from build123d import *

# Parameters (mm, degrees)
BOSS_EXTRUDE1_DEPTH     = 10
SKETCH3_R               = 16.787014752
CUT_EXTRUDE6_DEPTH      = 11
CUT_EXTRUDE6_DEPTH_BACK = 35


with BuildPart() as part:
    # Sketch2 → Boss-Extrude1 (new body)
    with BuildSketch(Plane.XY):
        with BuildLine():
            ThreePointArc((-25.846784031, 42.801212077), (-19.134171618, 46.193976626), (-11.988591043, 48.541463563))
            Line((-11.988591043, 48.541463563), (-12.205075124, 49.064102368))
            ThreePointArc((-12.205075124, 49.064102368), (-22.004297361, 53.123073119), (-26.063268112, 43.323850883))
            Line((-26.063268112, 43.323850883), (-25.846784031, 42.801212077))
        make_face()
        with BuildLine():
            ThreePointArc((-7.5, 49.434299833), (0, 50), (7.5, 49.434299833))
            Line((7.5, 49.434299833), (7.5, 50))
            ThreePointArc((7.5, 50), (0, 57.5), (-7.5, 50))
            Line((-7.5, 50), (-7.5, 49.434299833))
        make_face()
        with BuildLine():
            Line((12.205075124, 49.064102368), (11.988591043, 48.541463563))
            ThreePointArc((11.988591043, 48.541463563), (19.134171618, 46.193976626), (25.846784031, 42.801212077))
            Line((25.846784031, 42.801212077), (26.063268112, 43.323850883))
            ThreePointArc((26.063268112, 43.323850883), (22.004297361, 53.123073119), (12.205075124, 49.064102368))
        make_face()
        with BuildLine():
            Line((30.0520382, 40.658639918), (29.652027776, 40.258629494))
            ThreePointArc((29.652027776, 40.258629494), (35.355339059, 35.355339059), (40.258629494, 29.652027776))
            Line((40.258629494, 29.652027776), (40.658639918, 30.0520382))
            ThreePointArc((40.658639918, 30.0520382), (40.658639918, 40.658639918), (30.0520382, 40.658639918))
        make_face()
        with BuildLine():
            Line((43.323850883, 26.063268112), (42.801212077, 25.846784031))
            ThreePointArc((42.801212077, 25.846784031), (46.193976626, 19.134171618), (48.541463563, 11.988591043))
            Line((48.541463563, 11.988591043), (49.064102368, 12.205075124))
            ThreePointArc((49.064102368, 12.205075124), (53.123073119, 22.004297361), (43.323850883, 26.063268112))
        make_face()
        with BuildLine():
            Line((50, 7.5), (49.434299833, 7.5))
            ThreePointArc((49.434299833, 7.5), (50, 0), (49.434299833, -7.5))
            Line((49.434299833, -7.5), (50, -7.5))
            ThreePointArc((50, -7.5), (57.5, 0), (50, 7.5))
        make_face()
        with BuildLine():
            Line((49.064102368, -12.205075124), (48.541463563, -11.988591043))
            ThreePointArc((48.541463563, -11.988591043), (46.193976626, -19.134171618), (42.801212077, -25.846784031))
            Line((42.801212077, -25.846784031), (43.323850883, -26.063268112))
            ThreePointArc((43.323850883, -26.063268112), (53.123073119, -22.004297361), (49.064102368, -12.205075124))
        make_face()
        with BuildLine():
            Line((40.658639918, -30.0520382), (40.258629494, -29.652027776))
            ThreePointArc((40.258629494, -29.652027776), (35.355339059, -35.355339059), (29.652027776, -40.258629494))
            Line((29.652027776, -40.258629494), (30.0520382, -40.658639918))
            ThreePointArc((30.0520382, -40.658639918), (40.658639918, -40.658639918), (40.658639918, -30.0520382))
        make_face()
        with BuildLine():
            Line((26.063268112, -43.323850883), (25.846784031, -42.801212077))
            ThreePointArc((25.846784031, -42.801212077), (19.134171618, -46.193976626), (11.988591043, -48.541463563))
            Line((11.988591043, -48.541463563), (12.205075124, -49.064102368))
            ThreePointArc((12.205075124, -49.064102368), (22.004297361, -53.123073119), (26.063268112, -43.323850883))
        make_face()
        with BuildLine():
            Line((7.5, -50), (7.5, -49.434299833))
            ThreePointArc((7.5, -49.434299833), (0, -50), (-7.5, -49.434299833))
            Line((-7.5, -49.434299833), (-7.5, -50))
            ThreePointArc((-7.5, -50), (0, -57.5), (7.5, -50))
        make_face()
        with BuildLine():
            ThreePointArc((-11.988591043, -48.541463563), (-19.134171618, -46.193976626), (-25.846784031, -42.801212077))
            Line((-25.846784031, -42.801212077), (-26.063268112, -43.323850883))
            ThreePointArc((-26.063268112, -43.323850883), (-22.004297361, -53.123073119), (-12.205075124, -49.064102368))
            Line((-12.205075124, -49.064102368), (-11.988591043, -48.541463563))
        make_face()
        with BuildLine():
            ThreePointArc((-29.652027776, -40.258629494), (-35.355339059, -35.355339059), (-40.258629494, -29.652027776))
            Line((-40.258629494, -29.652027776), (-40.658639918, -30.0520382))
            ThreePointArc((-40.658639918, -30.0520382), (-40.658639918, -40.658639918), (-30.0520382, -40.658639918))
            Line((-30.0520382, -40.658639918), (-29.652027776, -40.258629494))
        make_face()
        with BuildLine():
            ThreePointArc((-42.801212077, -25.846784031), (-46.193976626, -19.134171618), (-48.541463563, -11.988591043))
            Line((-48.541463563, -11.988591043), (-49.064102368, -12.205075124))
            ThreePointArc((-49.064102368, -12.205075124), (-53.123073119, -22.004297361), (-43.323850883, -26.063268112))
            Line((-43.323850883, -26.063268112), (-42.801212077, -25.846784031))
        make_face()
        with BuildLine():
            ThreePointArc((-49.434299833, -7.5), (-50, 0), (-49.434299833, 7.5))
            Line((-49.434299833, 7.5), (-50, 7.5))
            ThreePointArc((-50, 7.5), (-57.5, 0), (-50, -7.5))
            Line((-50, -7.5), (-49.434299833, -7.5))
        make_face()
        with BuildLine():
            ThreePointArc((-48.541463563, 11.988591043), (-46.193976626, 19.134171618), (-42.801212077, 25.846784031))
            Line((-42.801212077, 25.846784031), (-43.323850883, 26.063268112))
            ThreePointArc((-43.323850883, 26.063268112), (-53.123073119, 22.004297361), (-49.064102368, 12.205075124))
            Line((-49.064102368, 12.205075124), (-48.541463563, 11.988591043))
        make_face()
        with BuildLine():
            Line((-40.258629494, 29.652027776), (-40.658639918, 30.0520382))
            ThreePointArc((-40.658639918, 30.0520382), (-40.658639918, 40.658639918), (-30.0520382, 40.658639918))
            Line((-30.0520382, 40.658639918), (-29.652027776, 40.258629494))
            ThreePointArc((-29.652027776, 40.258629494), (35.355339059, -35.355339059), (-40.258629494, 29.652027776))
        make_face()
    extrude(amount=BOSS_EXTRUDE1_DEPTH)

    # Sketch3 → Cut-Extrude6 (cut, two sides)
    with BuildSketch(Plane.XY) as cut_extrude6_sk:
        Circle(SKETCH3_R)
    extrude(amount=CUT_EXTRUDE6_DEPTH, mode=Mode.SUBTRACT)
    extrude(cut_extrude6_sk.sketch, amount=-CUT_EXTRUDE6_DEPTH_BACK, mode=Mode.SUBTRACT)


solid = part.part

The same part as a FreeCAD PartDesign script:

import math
import FreeCAD as App
import Part
import Sketcher
Q = App.Units.Quantity

doc = App.newDocument("Part")
body = doc.addObject("PartDesign::Body", "Body")

# Sketch on XY plane
sketch1 = body.newObject("Sketcher::SketchObject", "Sketch")
sketch1.AttachmentSupport = (doc.getObject("XY_Plane"), [""])
sketch1.MapMode = "FlatFace"
sketch1.addGeometry(Part.LineSegment(App.Vector(-11.988591, 48.541464, 0), App.Vector(-12.205075, 49.064102, 0)), False)
sketch1.addGeometry(Part.ArcOfCircle(Part.Circle(App.Vector(-19.134172, 46.193977, 0), App.Vector(0, 0, 1), 7.5), math.radians(22.5), math.radians(202.5)), False)
sketch1.addGeometry(Part.LineSegment(App.Vector(-26.063268, 43.323851, 0), App.Vector(-25.846784, 42.801212, 0)), False)
sketch1.addGeometry(Part.ArcOfCircle(Part.Circle(App.Vector(0, 0, 0), App.Vector(0, 0, 1), 50), math.radians(121.126927), math.radians(126.373073)), False)
sketch1.addGeometry(Part.LineSegment(App.Vector(-29.652028, 40.258629, 0), App.Vector(-30.052038, 40.65864, 0)), False)
sketch1.addGeometry(Part.ArcOfCircle(Part.Circle(App.Vector(-35.355339, 35.355339, 0), App.Vector(0, 0, 1), 7.5), math.radians(45), math.radians(225)), False)
sketch1.addGeometry(Part.LineSegment(App.Vector(-40.65864, 30.052038, 0), App.Vector(-40.258629, 29.652028, 0)), False)
sketch1.addGeometry(Part.ArcOfCircle(Part.Circle(App.Vector(0, 0, 0), App.Vector(0, 0, 1), 50), math.radians(143.626927), math.radians(148.873073)), False)
sketch1.addGeometry(Part.LineSegment(App.Vector(-42.801212, 25.846784, 0), App.Vector(-43.323851, 26.063268, 0)), False)
sketch1.addGeometry(Part.ArcOfCircle(Part.Circle(App.Vector(-46.193977, 19.134172, 0), App.Vector(0, 0, 1), 7.5), math.radians(67.5), math.radians(247.5)), False)
sketch1.addGeometry(Part.LineSegment(App.Vector(-49.064102, 12.205075, 0), App.Vector(-48.541464, 11.988591, 0)), False)
sketch1.addGeometry(Part.ArcOfCircle(Part.Circle(App.Vector(0, 0, 0), App.Vector(0, 0, 1), 50), math.radians(166.126927), math.radians(171.373073)), False)
sketch1.addGeometry(Part.LineSegment(App.Vector(-49.4343, 7.5, 0), App.Vector(-50, 7.5, 0)), False)
sketch1.addGeometry(Part.ArcOfCircle(Part.Circle(App.Vector(-50, 0, 0), App.Vector(0, 0, 1), 7.5), math.radians(90), math.radians(270)), False)
sketch1.addGeometry(Part.LineSegment(App.Vector(-50, -7.5, 0), App.Vector(-49.4343, -7.5, 0)), False)
sketch1.addGeometry(Part.ArcOfCircle(Part.Circle(App.Vector(0, 0, 0), App.Vector(0, 0, 1), 50), math.radians(-171.373073), math.radians(-166.126927)), False)
sketch1.addGeometry(Part.LineSegment(App.Vector(-48.541464, -11.988591, 0), App.Vector(-49.064102, -12.205075, 0)), False)
sketch1.addGeometry(Part.ArcOfCircle(Part.Circle(App.Vector(-46.193977, -19.134172, 0), App.Vector(0, 0, 1), 7.5), math.radians(112.5), math.radians(292.5)), False)
sketch1.addGeometry(Part.LineSegment(App.Vector(-43.323851, -26.063268, 0), App.Vector(-42.801212, -25.846784, 0)), False)
sketch1.addGeometry(Part.ArcOfCircle(Part.Circle(App.Vector(0, 0, 0), App.Vector(0, 0, 1), 50), math.radians(-148.873073), math.radians(-143.626927)), False)
sketch1.addGeometry(Part.LineSegment(App.Vector(-40.258629, -29.652028, 0), App.Vector(-40.65864, -30.052038, 0)), False)
sketch1.addGeometry(Part.ArcOfCircle(Part.Circle(App.Vector(-35.355339, -35.355339, 0), App.Vector(0, 0, 1), 7.5), math.radians(135), math.radians(315)), False)
sketch1.addGeometry(Part.LineSegment(App.Vector(-30.052038, -40.65864, 0), App.Vector(-29.652028, -40.258629, 0)), False)
sketch1.addGeometry(Part.ArcOfCircle(Part.Circle(App.Vector(0, 0, 0), App.Vector(0, 0, 1), 50), math.radians(-126.373073), math.radians(-121.126927)), False)
sketch1.addGeometry(Part.LineSegment(App.Vector(-25.846784, -42.801212, 0), App.Vector(-26.063268, -43.323851, 0)), False)
sketch1.addGeometry(Part.ArcOfCircle(Part.Circle(App.Vector(-19.134172, -46.193977, 0), App.Vector(0, 0, 1), 7.5), math.radians(157.5), math.radians(337.5)), False)
sketch1.addGeometry(Part.LineSegment(App.Vector(-12.205075, -49.064102, 0), App.Vector(-11.988591, -48.541464, 0)), False)
sketch1.addGeometry(Part.ArcOfCircle(Part.Circle(App.Vector(0, 0, 0), App.Vector(0, 0, 1), 50), math.radians(-103.873073), math.radians(-98.626927)), False)
sketch1.addGeometry(Part.LineSegment(App.Vector(-7.5, -49.4343, 0), App.Vector(-7.5, -50, 0)), False)
sketch1.addGeometry(Part.ArcOfCircle(Part.Circle(App.Vector(0, -50, 0), App.Vector(0, 0, 1), 7.5), math.radians(180), math.radians(360)), False)
sketch1.addGeometry(Part.LineSegment(App.Vector(7.5, -50, 0), App.Vector(7.5, -49.4343, 0)), False)
sketch1.addGeometry(Part.ArcOfCircle(Part.Circle(App.Vector(0, 0, 0), App.Vector(0, 0, 1), 50), math.radians(-81.373073), math.radians(-76.126927)), False)
sketch1.addGeometry(Part.LineSegment(App.Vector(11.988591, -48.541464, 0), App.Vector(12.205075, -49.064102, 0)), False)
sketch1.addGeometry(Part.ArcOfCircle(Part.Circle(App.Vector(19.134172, -46.193977, 0), App.Vector(0, 0, 1), 7.5), math.radians(-157.5), math.radians(22.5)), False)
sketch1.addGeometry(Part.LineSegment(App.Vector(26.063268, -43.323851, 0), App.Vector(25.846784, -42.801212, 0)), False)
sketch1.addGeometry(Part.ArcOfCircle(Part.Circle(App.Vector(0, 0, 0), App.Vector(0, 0, 1), 50), math.radians(-58.873073), math.radians(-53.626927)), False)
sketch1.addGeometry(Part.LineSegment(App.Vector(29.652028, -40.258629, 0), App.Vector(30.052038, -40.65864, 0)), False)
sketch1.addGeometry(Part.ArcOfCircle(Part.Circle(App.Vector(35.355339, -35.355339, 0), App.Vector(0, 0, 1), 7.5), math.radians(-135), math.radians(45)), False)
sketch1.addGeometry(Part.LineSegment(App.Vector(40.65864, -30.052038, 0), App.Vector(40.258629, -29.652028, 0)), False)
sketch1.addGeometry(Part.ArcOfCircle(Part.Circle(App.Vector(0, 0, 0), App.Vector(0, 0, 1), 50), math.radians(-36.373073), math.radians(-31.126927)), False)
sketch1.addGeometry(Part.LineSegment(App.Vector(42.801212, -25.846784, 0), App.Vector(43.323851, -26.063268, 0)), False)
sketch1.addGeometry(Part.ArcOfCircle(Part.Circle(App.Vector(46.193977, -19.134172, 0), App.Vector(0, 0, 1), 7.5), math.radians(-112.5), math.radians(67.5)), False)
sketch1.addGeometry(Part.LineSegment(App.Vector(49.064102, -12.205075, 0), App.Vector(48.541464, -11.988591, 0)), False)
sketch1.addGeometry(Part.ArcOfCircle(Part.Circle(App.Vector(0, 0, 0), App.Vector(0, 0, 1), 50), math.radians(-13.873073), math.radians(-8.626927)), False)
sketch1.addGeometry(Part.LineSegment(App.Vector(49.4343, -7.5, 0), App.Vector(50, -7.5, 0)), False)
sketch1.addGeometry(Part.ArcOfCircle(Part.Circle(App.Vector(50, 0, 0), App.Vector(0, 0, 1), 7.5), math.radians(-90), math.radians(90)), False)
sketch1.addGeometry(Part.LineSegment(App.Vector(50, 7.5, 0), App.Vector(49.4343, 7.5, 0)), False)
sketch1.addGeometry(Part.ArcOfCircle(Part.Circle(App.Vector(0, 0, 0), App.Vector(0, 0, 1), 50), math.radians(8.626927), math.radians(13.873073)), False)
sketch1.addGeometry(Part.LineSegment(App.Vector(48.541464, 11.988591, 0), App.Vector(49.064102, 12.205075, 0)), False)
sketch1.addGeometry(Part.ArcOfCircle(Part.Circle(App.Vector(46.193977, 19.134172, 0), App.Vector(0, 0, 1), 7.5), math.radians(-67.5), math.radians(112.5)), False)
sketch1.addGeometry(Part.LineSegment(App.Vector(43.323851, 26.063268, 0), App.Vector(42.801212, 25.846784, 0)), False)
sketch1.addGeometry(Part.ArcOfCircle(Part.Circle(App.Vector(0, 0, 0), App.Vector(0, 0, 1), 50), math.radians(31.126927), math.radians(36.373073)), False)
sketch1.addGeometry(Part.LineSegment(App.Vector(40.258629, 29.652028, 0), App.Vector(40.65864, 30.052038, 0)), False)
sketch1.addGeometry(Part.ArcOfCircle(Part.Circle(App.Vector(35.355339, 35.355339, 0), App.Vector(0, 0, 1), 7.5), math.radians(-45), math.radians(135)), False)
sketch1.addGeometry(Part.LineSegment(App.Vector(30.052038, 40.65864, 0), App.Vector(29.652028, 40.258629, 0)), False)
sketch1.addGeometry(Part.ArcOfCircle(Part.Circle(App.Vector(0, 0, 0), App.Vector(0, 0, 1), 50), math.radians(53.626927), math.radians(58.873073)), False)
sketch1.addGeometry(Part.LineSegment(App.Vector(25.846784, 42.801212, 0), App.Vector(26.063268, 43.323851, 0)), False)
sketch1.addGeometry(Part.ArcOfCircle(Part.Circle(App.Vector(19.134172, 46.193977, 0), App.Vector(0, 0, 1), 7.5), math.radians(-22.5), math.radians(157.5)), False)
sketch1.addGeometry(Part.LineSegment(App.Vector(12.205075, 49.064102, 0), App.Vector(11.988591, 48.541464, 0)), False)
sketch1.addGeometry(Part.ArcOfCircle(Part.Circle(App.Vector(0, 0, 0), App.Vector(0, 0, 1), 50), math.radians(76.126927), math.radians(81.373073)), False)
sketch1.addGeometry(Part.LineSegment(App.Vector(7.5, 49.4343, 0), App.Vector(7.5, 50, 0)), False)
sketch1.addGeometry(Part.ArcOfCircle(Part.Circle(App.Vector(0, 50, 0), App.Vector(0, 0, 1), 7.5), math.radians(0), math.radians(180)), False)
sketch1.addGeometry(Part.LineSegment(App.Vector(-7.5, 50, 0), App.Vector(-7.5, 49.4343, 0)), False)
sketch1.addGeometry(Part.ArcOfCircle(Part.Circle(App.Vector(0, 0, 0), App.Vector(0, 0, 1), 50), math.radians(98.626927), math.radians(103.873073)), False)
sketch1.addConstraint(Sketcher.Constraint("Tangent", 0, 2, 1, 1))
sketch1.addConstraint(Sketcher.Constraint("Tangent", 1, 2, 2, 1))
sketch1.addConstraint(Sketcher.Constraint("Coincident", 2, 2, 3, 1))
sketch1.addConstraint(Sketcher.Constraint("Coincident", 3, 2, 4, 1))
sketch1.addConstraint(Sketcher.Constraint("Tangent", 4, 2, 5, 1))
sketch1.addConstraint(Sketcher.Constraint("Tangent", 5, 2, 6, 1))
sketch1.addConstraint(Sketcher.Constraint("Coincident", 6, 2, 7, 1))
sketch1.addConstraint(Sketcher.Constraint("Coincident", 7, 2, 8, 1))
sketch1.addConstraint(Sketcher.Constraint("Tangent", 8, 2, 9, 1))
sketch1.addConstraint(Sketcher.Constraint("Tangent", 9, 2, 10, 1))
sketch1.addConstraint(Sketcher.Constraint("Coincident", 10, 2, 11, 1))
sketch1.addConstraint(Sketcher.Constraint("Coincident", 11, 2, 12, 1))
sketch1.addConstraint(Sketcher.Constraint("Tangent", 12, 2, 13, 1))
sketch1.addConstraint(Sketcher.Constraint("Tangent", 13, 2, 14, 1))
sketch1.addConstraint(Sketcher.Constraint("Coincident", 14, 2, 15, 1))
sketch1.addConstraint(Sketcher.Constraint("Coincident", 15, 2, 16, 1))
sketch1.addConstraint(Sketcher.Constraint("Tangent", 16, 2, 17, 1))
sketch1.addConstraint(Sketcher.Constraint("Tangent", 17, 2, 18, 1))
sketch1.addConstraint(Sketcher.Constraint("Coincident", 18, 2, 19, 1))
sketch1.addConstraint(Sketcher.Constraint("Coincident", 19, 2, 20, 1))
sketch1.addConstraint(Sketcher.Constraint("Tangent", 20, 2, 21, 1))
sketch1.addConstraint(Sketcher.Constraint("Tangent", 21, 2, 22, 1))
sketch1.addConstraint(Sketcher.Constraint("Coincident", 22, 2, 23, 1))
sketch1.addConstraint(Sketcher.Constraint("Coincident", 23, 2, 24, 1))
sketch1.addConstraint(Sketcher.Constraint("Tangent", 24, 2, 25, 1))
sketch1.addConstraint(Sketcher.Constraint("Tangent", 25, 2, 26, 1))
sketch1.addConstraint(Sketcher.Constraint("Coincident", 26, 2, 27, 1))
sketch1.addConstraint(Sketcher.Constraint("Coincident", 27, 2, 28, 1))
sketch1.addConstraint(Sketcher.Constraint("Tangent", 28, 2, 29, 1))
sketch1.addConstraint(Sketcher.Constraint("Tangent", 29, 2, 30, 1))
sketch1.addConstraint(Sketcher.Constraint("Coincident", 30, 2, 31, 1))
sketch1.addConstraint(Sketcher.Constraint("Coincident", 31, 2, 32, 1))
sketch1.addConstraint(Sketcher.Constraint("Tangent", 32, 2, 33, 1))
sketch1.addConstraint(Sketcher.Constraint("Tangent", 33, 2, 34, 1))
sketch1.addConstraint(Sketcher.Constraint("Coincident", 34, 2, 35, 1))
sketch1.addConstraint(Sketcher.Constraint("Coincident", 35, 2, 36, 1))
sketch1.addConstraint(Sketcher.Constraint("Tangent", 36, 2, 37, 1))
sketch1.addConstraint(Sketcher.Constraint("Tangent", 37, 2, 38, 1))
sketch1.addConstraint(Sketcher.Constraint("Coincident", 38, 2, 39, 1))
sketch1.addConstraint(Sketcher.Constraint("Coincident", 39, 2, 40, 1))
sketch1.addConstraint(Sketcher.Constraint("Tangent", 40, 2, 41, 1))
sketch1.addConstraint(Sketcher.Constraint("Tangent", 41, 2, 42, 1))
sketch1.addConstraint(Sketcher.Constraint("Coincident", 42, 2, 43, 1))
sketch1.addConstraint(Sketcher.Constraint("Coincident", 43, 2, 44, 1))
sketch1.addConstraint(Sketcher.Constraint("Tangent", 44, 2, 45, 1))
sketch1.addConstraint(Sketcher.Constraint("Tangent", 45, 2, 46, 1))
sketch1.addConstraint(Sketcher.Constraint("Coincident", 46, 2, 47, 1))
sketch1.addConstraint(Sketcher.Constraint("Coincident", 47, 2, 48, 1))
sketch1.addConstraint(Sketcher.Constraint("Tangent", 48, 2, 49, 1))
sketch1.addConstraint(Sketcher.Constraint("Tangent", 49, 2, 50, 1))
sketch1.addConstraint(Sketcher.Constraint("Coincident", 50, 2, 51, 1))
sketch1.addConstraint(Sketcher.Constraint("Coincident", 51, 2, 52, 1))
sketch1.addConstraint(Sketcher.Constraint("Tangent", 52, 2, 53, 1))
sketch1.addConstraint(Sketcher.Constraint("Tangent", 53, 2, 54, 1))
sketch1.addConstraint(Sketcher.Constraint("Coincident", 54, 2, 55, 1))
sketch1.addConstraint(Sketcher.Constraint("Coincident", 55, 2, 56, 1))
sketch1.addConstraint(Sketcher.Constraint("Tangent", 56, 2, 57, 1))
sketch1.addConstraint(Sketcher.Constraint("Tangent", 57, 2, 58, 1))
sketch1.addConstraint(Sketcher.Constraint("Coincident", 58, 2, 59, 1))
sketch1.addConstraint(Sketcher.Constraint("Coincident", 59, 2, 60, 1))
sketch1.addConstraint(Sketcher.Constraint("Tangent", 60, 2, 61, 1))
sketch1.addConstraint(Sketcher.Constraint("Tangent", 61, 2, 62, 1))
sketch1.addConstraint(Sketcher.Constraint("Coincident", 62, 2, 63, 1))
sketch1.addConstraint(Sketcher.Constraint("Coincident", 63, 2, 0, 1))
sketch1.addConstraint(Sketcher.Constraint("Horizontal", 12))
sketch1.addConstraint(Sketcher.Constraint("Horizontal", 14))
sketch1.addConstraint(Sketcher.Constraint("Vertical", 28))
sketch1.addConstraint(Sketcher.Constraint("Vertical", 30))
sketch1.addConstraint(Sketcher.Constraint("Horizontal", 44))
sketch1.addConstraint(Sketcher.Constraint("Horizontal", 46))
sketch1.addConstraint(Sketcher.Constraint("Vertical", 60))
sketch1.addConstraint(Sketcher.Constraint("Vertical", 62))
sketch1.addConstraint(Sketcher.Constraint("Coincident", 3, 3, -1, 1))
sketch1.addConstraint(Sketcher.Constraint("Coincident", 7, 3, -1, 1))
sketch1.addConstraint(Sketcher.Constraint("Coincident", 11, 3, -1, 1))
sketch1.addConstraint(Sketcher.Constraint("Coincident", 15, 3, -1, 1))
sketch1.addConstraint(Sketcher.Constraint("Coincident", 19, 3, -1, 1))
sketch1.addConstraint(Sketcher.Constraint("Coincident", 23, 3, -1, 1))
sketch1.addConstraint(Sketcher.Constraint("Coincident", 27, 3, -1, 1))
sketch1.addConstraint(Sketcher.Constraint("Coincident", 31, 3, -1, 1))
sketch1.addConstraint(Sketcher.Constraint("Coincident", 35, 3, -1, 1))
sketch1.addConstraint(Sketcher.Constraint("Coincident", 39, 3, -1, 1))
sketch1.addConstraint(Sketcher.Constraint("Coincident", 43, 3, -1, 1))
sketch1.addConstraint(Sketcher.Constraint("Coincident", 47, 3, -1, 1))
sketch1.addConstraint(Sketcher.Constraint("Coincident", 51, 3, -1, 1))
sketch1.addConstraint(Sketcher.Constraint("Coincident", 55, 3, -1, 1))
sketch1.addConstraint(Sketcher.Constraint("Coincident", 59, 3, -1, 1))
sketch1.addConstraint(Sketcher.Constraint("Coincident", 63, 3, -1, 1))
sketch1.addConstraint(Sketcher.Constraint("Equal", 1, 5))
sketch1.addConstraint(Sketcher.Constraint("Equal", 3, 7))
sketch1.addConstraint(Sketcher.Constraint("Equal", 5, 9))
sketch1.addConstraint(Sketcher.Constraint("Equal", 7, 11))
sketch1.addConstraint(Sketcher.Constraint("Equal", 9, 13))
sketch1.addConstraint(Sketcher.Constraint("Equal", 11, 15))
sketch1.addConstraint(Sketcher.Constraint("Equal", 13, 17))
sketch1.addConstraint(Sketcher.Constraint("Equal", 15, 19))
sketch1.addConstraint(Sketcher.Constraint("Equal", 17, 21))
sketch1.addConstraint(Sketcher.Constraint("Equal", 19, 23))
sketch1.addConstraint(Sketcher.Constraint("Equal", 21, 25))
sketch1.addConstraint(Sketcher.Constraint("Equal", 23, 27))
sketch1.addConstraint(Sketcher.Constraint("Equal", 25, 29))
sketch1.addConstraint(Sketcher.Constraint("Equal", 27, 31))
sketch1.addConstraint(Sketcher.Constraint("Equal", 29, 33))
sketch1.addConstraint(Sketcher.Constraint("Equal", 31, 35))
sketch1.addConstraint(Sketcher.Constraint("Equal", 33, 37))
sketch1.addConstraint(Sketcher.Constraint("Equal", 35, 39))
sketch1.addConstraint(Sketcher.Constraint("Equal", 37, 41))
sketch1.addConstraint(Sketcher.Constraint("Equal", 39, 43))
sketch1.addConstraint(Sketcher.Constraint("Equal", 41, 45))
sketch1.addConstraint(Sketcher.Constraint("Equal", 43, 47))
sketch1.addConstraint(Sketcher.Constraint("Equal", 45, 49))
sketch1.addConstraint(Sketcher.Constraint("Equal", 47, 51))
sketch1.addConstraint(Sketcher.Constraint("Equal", 49, 53))
sketch1.addConstraint(Sketcher.Constraint("Equal", 51, 55))
sketch1.addConstraint(Sketcher.Constraint("Equal", 53, 57))
sketch1.addConstraint(Sketcher.Constraint("Equal", 55, 59))
sketch1.addConstraint(Sketcher.Constraint("Equal", 57, 61))
sketch1.addConstraint(Sketcher.Constraint("Equal", 59, 63))
sketch1.addConstraint(Sketcher.Constraint("Symmetric", 1, 3, 33, 3, -1, 1))
sketch1.addConstraint(Sketcher.Constraint("Symmetric", 5, 3, 37, 3, -1, 1))
sketch1.addConstraint(Sketcher.Constraint("Symmetric", 9, 3, 41, 3, -1, 1))
sketch1.addConstraint(Sketcher.Constraint("Symmetric", 13, 3, 45, 3, -1, 1))
sketch1.addConstraint(Sketcher.Constraint("Symmetric", 17, 3, 49, 3, -1, 1))
sketch1.addConstraint(Sketcher.Constraint("Symmetric", 21, 3, 53, 3, -1, 1))
sketch1.addConstraint(Sketcher.Constraint("Symmetric", 25, 3, 57, 3, -1, 1))
sketch1.addConstraint(Sketcher.Constraint("Symmetric", 29, 3, 61, 3, -1, 1))
sketch1.addConstraint(Sketcher.Constraint("Symmetric", 25, 3, 33, 3, -2))
sketch1.addConstraint(Sketcher.Constraint("Symmetric", 21, 3, 37, 3, -2))
sketch1.addConstraint(Sketcher.Constraint("Symmetric", 17, 3, 41, 3, -2))
sketch1.addConstraint(Sketcher.Constraint("PointOnObject", 13, 3, -1))
sketch1.addConstraint(Sketcher.Constraint("PointOnObject", 29, 3, -2))
sketch1.addConstraint(Sketcher.Constraint("Parallel", 0, 2))
sketch1.addConstraint(Sketcher.Constraint("Parallel", 4, 6))
sketch1.addConstraint(Sketcher.Constraint("Parallel", 8, 10))
sketch1.addConstraint(Sketcher.Constraint("Perpendicular", 2, 16))
sketch1.addConstraint(Sketcher.Constraint("Parallel", 16, 18))
sketch1.addConstraint(Sketcher.Constraint("Perpendicular", 6, 20))
sketch1.addConstraint(Sketcher.Constraint("Parallel", 20, 22))
sketch1.addConstraint(Sketcher.Constraint("Perpendicular", 10, 24))
sketch1.addConstraint(Sketcher.Constraint("Parallel", 24, 26))
sketch1.addConstraint(Sketcher.Constraint("Perpendicular", 18, 32))
sketch1.addConstraint(Sketcher.Constraint("Parallel", 32, 34))
sketch1.addConstraint(Sketcher.Constraint("Perpendicular", 22, 36))
sketch1.addConstraint(Sketcher.Constraint("Parallel", 36, 38))
sketch1.addConstraint(Sketcher.Constraint("Perpendicular", 26, 40))
sketch1.addConstraint(Sketcher.Constraint("Parallel", 40, 42))
sketch1.addConstraint(Sketcher.Constraint("Perpendicular", 34, 48))
sketch1.addConstraint(Sketcher.Constraint("Parallel", 48, 50))
sketch1.addConstraint(Sketcher.Constraint("Perpendicular", 38, 52))
sketch1.addConstraint(Sketcher.Constraint("Parallel", 52, 54))
sketch1.addConstraint(Sketcher.Constraint("Perpendicular", 42, 56))
sketch1.addConstraint(Sketcher.Constraint("Parallel", 56, 58))
sketch1.addConstraint(Sketcher.Constraint("Horizontal", 25, 2, 32, 2))
sketch1.addConstraint(Sketcher.Constraint("Horizontal", 21, 2, 36, 2))
sketch1.addConstraint(Sketcher.Constraint("Equal", 46, 28))
sketch1.addConstraint(Sketcher.Constraint("Equal", 0, 2))
sketch1.addConstraint(Sketcher.Constraint("Equal", 2, 4))
sketch1.addConstraint(Sketcher.Constraint("Equal", 4, 6))
sketch1.addConstraint(Sketcher.Constraint("Equal", 6, 8))
sketch1.addConstraint(Sketcher.Constraint("Equal", 8, 10))
sketch1.addConstraint(Sketcher.Constraint("Radius", 3, Q("50 mm")))
sketch1.addConstraint(Sketcher.Constraint("Radius", 1, Q("7.5 mm")))
sketch1.addConstraint(Sketcher.Constraint("DistanceX", 13, 3, -1, 1, Q("50 mm")))
sketch1.addConstraint(Sketcher.Constraint("Distance", 0, Q("0.5657 mm")))
sketch1.addConstraint(Sketcher.Constraint("DistanceX", 1, 3, -1, 1, Q("19.134172 mm")))
pad1 = body.newObject("PartDesign::Pad", "Pad")
pad1.Profile = sketch1
pad1.Length = 10

# Sketch on XY plane
sketch2 = body.newObject("Sketcher::SketchObject", "Sketch001")
sketch2.AttachmentSupport = (doc.getObject("XY_Plane"), [""])
sketch2.MapMode = "FlatFace"
sketch2.addGeometry(Part.Circle(App.Vector(0, 0, 0), App.Vector(0, 0, 1), 16.787015), False)
sketch2.addConstraint(Sketcher.Constraint("Coincident", 0, 3, -1, 1))
sketch2.addConstraint(Sketcher.Constraint("Diameter", 0, Q("33.57403 mm")))
pocket1 = body.newObject("PartDesign::Pocket", "Pocket")
pocket1.Profile = sketch2
pocket1.Type = "ThroughAll"
pocket1.Midplane = True

doc.recompute()
